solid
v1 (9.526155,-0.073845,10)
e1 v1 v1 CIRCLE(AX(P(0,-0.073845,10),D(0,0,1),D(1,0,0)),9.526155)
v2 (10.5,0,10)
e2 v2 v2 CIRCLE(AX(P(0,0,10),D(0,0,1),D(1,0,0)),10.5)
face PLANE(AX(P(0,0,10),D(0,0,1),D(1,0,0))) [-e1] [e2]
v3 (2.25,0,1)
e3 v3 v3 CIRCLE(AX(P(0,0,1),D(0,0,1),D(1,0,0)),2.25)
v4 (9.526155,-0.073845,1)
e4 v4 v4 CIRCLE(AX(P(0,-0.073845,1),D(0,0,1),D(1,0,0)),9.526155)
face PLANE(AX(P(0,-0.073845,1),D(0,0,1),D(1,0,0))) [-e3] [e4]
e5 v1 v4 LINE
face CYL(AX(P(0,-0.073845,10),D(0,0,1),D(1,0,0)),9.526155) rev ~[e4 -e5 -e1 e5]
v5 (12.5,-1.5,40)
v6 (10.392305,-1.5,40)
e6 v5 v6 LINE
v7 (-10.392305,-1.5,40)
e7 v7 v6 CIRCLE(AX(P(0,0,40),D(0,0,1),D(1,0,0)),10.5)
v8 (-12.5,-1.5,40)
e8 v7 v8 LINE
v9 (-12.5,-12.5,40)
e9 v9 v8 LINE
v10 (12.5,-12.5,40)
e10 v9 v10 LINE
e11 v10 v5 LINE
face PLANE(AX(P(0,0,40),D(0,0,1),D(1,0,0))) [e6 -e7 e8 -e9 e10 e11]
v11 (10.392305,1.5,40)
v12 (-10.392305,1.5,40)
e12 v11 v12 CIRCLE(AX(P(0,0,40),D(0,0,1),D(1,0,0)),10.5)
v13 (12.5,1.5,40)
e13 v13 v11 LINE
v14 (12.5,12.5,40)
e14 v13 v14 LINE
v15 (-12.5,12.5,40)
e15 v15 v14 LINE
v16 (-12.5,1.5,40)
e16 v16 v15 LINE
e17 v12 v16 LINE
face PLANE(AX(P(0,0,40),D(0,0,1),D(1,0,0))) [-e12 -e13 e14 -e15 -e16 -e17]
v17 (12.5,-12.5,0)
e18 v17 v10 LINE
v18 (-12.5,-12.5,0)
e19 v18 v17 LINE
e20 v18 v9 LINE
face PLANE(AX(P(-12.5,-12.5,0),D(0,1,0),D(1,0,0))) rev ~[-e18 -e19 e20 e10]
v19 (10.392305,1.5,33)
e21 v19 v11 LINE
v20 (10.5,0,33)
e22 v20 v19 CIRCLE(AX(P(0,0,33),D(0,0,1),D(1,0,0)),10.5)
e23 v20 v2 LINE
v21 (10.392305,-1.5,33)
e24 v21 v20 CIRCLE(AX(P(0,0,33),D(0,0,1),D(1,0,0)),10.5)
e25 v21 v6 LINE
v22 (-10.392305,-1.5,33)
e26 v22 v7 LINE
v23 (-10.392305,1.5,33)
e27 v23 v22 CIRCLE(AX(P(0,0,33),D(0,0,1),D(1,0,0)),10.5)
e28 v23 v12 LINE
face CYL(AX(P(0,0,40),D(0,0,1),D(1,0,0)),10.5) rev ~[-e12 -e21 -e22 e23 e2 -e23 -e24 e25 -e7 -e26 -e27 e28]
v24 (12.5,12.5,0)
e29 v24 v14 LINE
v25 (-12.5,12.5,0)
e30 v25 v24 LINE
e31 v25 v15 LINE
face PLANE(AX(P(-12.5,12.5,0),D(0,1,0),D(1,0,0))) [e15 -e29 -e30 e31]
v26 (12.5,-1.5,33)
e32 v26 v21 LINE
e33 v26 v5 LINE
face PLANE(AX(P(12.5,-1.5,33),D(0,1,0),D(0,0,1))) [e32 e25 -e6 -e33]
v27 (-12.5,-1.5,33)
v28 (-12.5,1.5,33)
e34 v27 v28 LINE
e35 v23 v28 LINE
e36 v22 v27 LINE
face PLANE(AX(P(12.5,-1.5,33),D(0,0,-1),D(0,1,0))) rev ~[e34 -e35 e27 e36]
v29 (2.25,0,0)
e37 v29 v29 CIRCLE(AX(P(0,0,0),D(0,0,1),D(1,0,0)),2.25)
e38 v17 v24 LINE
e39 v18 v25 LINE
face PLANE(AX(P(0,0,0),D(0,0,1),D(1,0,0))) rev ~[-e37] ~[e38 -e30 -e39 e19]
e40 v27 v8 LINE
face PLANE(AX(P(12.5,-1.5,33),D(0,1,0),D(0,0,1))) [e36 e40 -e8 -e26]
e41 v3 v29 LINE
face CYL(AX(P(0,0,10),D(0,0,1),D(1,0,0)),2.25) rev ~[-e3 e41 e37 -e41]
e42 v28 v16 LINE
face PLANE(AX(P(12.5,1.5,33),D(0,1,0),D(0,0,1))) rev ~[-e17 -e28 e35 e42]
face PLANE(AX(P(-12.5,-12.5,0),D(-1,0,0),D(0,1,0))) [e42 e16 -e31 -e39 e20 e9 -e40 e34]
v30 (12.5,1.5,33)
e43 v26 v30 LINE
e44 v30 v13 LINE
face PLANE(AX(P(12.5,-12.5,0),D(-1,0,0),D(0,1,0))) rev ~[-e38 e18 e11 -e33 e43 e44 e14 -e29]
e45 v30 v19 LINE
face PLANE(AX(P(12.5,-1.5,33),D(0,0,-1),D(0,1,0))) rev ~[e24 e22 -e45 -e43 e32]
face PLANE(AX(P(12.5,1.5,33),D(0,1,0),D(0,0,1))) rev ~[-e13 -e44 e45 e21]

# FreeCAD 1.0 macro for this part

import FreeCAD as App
import Part
import Sketcher
from FreeCAD import Vector

doc = App.newDocument("Part")
params = doc.addObject("Spreadsheet::Sheet", "Params")
for row, (alias, value) in enumerate([
    ("sketch1_width", "25 mm"),
    ("pad1_length", "40 mm"),
    ("sketch2_diameter", "21 mm"),
    ("pocket1_length", "30 mm"),
    ("sketch3_diameter", "4.5 mm"),
    ("pocket2_length", "25 mm"),
    ("sketch4_width", "3 mm"),
    ("sketch4_height", "7 mm"),
    ("pocket3_length", "25 mm"),
    ("pocket4_length", "9 mm"),
], start=1):
    params.set(f"A{row}", alias)
    params.set(f"B{row}", "=" + value)
    params.setAlias(f"B{row}", alias)

body = doc.addObject("PartDesign::Body", "Body")

# Sketch on XY plane
sketch1 = doc.addObject("Sketcher::SketchObject", "Sketch")
body.addObject(sketch1)
sketch1.AttachmentSupport = (doc.XY_Plane, [""])
sketch1.MapMode = "FlatFace"
sketch1.addGeometry([
    Part.LineSegment(Vector(-12, 12, 0), Vector(-12, -12, 0)),
    Part.LineSegment(Vector(-12, -12, 0), Vector(12, -12, 0)),
    Part.LineSegment(Vector(12, -12, 0), Vector(12, 12, 0)),
    Part.LineSegment(Vector(12, 12, 0), Vector(-12, 12, 0)),
], False)
sketch1.addConstraint([
    Sketcher.Constraint("Coincident", 0, 2, 1, 1),
    Sketcher.Constraint("Coincident", 1, 2, 2, 1),
    Sketcher.Constraint("Coincident", 2, 2, 3, 1),
    Sketcher.Constraint("Coincident", 3, 2, 0, 1),
    Sketcher.Constraint("Vertical", 0),
    Sketcher.Constraint("Horizontal", 1),
    Sketcher.Constraint("Vertical", 2),
    Sketcher.Constraint("Horizontal", 3),
    Sketcher.Constraint("Symmetric", 0, 2, 2, 2, -1, 1),
    Sketcher.Constraint("Equal", 3, 0),
    Sketcher.Constraint("DistanceX", 1, 1, 1, 2, 25.0),
])
sketch1.setExpression("Constraints[10]", "Params.sketch1_width")
pad1 = doc.addObject("PartDesign::Pad", "Pad")
body.addObject(pad1)
pad1.Profile = sketch1
pad1.setExpression("Length", "Params.pad1_length")

# Sketch on XY plane
sketch2 = doc.addObject("Sketcher::SketchObject", "Sketch001")
body.addObject(sketch2)
sketch2.AttachmentSupport = (doc.XY_Plane, [""])
sketch2.MapMode = "FlatFace"
sketch2.AttachmentOffset = App.Placement(Vector(0, 0, 40), App.Rotation())
sketch2.addGeometry(Part.Circle(Vector(0, 0, 0), Vector(0, 0, 1), 10), False)
sketch2.addConstraint([
    Sketcher.Constraint("Coincident", 0, 3, -1, 1),
    Sketcher.Constraint("Diameter", 0, 21.0),
])
sketch2.setExpression("Constraints[1]", "Params.sketch2_diameter")
pocket1 = doc.addObject("PartDesign::Pocket", "Pocket")
body.addObject(pocket1)
pocket1.Profile = sketch2
pocket1.setExpression("Length", "Params.pocket1_length")

# Sketch on XY plane
sketch3 = doc.addObject("Sketcher::SketchObject", "Sketch002")
body.addObject(sketch3)
sketch3.AttachmentSupport = (doc.XY_Plane, [""])
sketch3.MapMode = "FlatFace"
sketch3.AttachmentOffset = App.Placement(Vector(0, 0, 10), App.Rotation())
sketch3.addGeometry(Part.Circle(Vector(0, 0, 0), Vector(0, 0, 1), 2.2), False)
sketch3.addConstraint([
    Sketcher.Constraint("Coincident", 0, 3, -1, 1),
    Sketcher.Constraint("Diameter", 0, 4.5),
])
sketch3.setExpression("Constraints[1]", "Params.sketch3_diameter")
pocket2 = doc.addObject("PartDesign::Pocket", "Pocket001")
body.addObject(pocket2)
pocket2.Profile = sketch3
pocket2.setExpression("Length", "Params.pocket2_length")

# Sketch on YZ plane
sketch4 = doc.addObject("Sketcher::SketchObject", "Sketch003")
body.addObject(sketch4)
sketch4.AttachmentSupport = (doc.YZ_Plane, [""])
sketch4.MapMode = "FlatFace"
sketch4.AttachmentOffset = App.Placement(Vector(0, 0, 12.5), App.Rotation())
sketch4.addGeometry([
    Part.LineSegment(Vector(-1.5, 40, 0), Vector(-1.5, 33, 0)),
    Part.LineSegment(Vector(-1.5, 33, 0), Vector(1.5, 33, 0)),
    Part.LineSegment(Vector(1.5, 33, 0), Vector(1.5, 40, 0)),
    Part.LineSegment(Vector(1.5, 40, 0), Vector(-1.5, 40, 0)),
], False)
sketch4.addConstraint([
    Sketcher.Constraint("Coincident", 0, 2, 1, 1),
    Sketcher.Constraint("Coincident", 1, 2, 2, 1),
    Sketcher.Constraint("Coincident", 2, 2, 3, 1),
    Sketcher.Constraint("Coincident", 3, 2, 0, 1),
    Sketcher.Constraint("Vertical", 0),
    Sketcher.Constraint("Horizontal", 1),
    Sketcher.Constraint("Vertical", 2),
    Sketcher.Constraint("Horizontal", 3),
    Sketcher.Constraint("DistanceX", 1, 1, 1, 2, 3.0),
    Sketcher.Constraint("DistanceY", 0, 2, 0, 1, 7.0),
    Sketcher.Constraint("DistanceY", -1, 1, 0, 2, 33.0),
    Sketcher.Constraint("DistanceX", 0, 2, -1, 1, 1.5),
])
sketch4.setExpression("Constraints[8]", "Params.sketch4_width")
sketch4.setExpression("Constraints[9]", "Params.sketch4_height")
pocket3 = doc.addObject("PartDesign::Pocket", "Pocket002")
body.addObject(pocket3)
pocket3.Profile = sketch4
pocket3.setExpression("Length", "Params.pocket3_length")

# Sketch on XY plane
sketch5 = doc.addObject("Sketcher::SketchObject", "Sketch004")
body.addObject(sketch5)
sketch5.AttachmentSupport = (doc.XY_Plane, [""])
sketch5.MapMode = "FlatFace"
sketch5.AttachmentOffset = App.Placement(Vector(0, 0, 10), App.Rotation())
sketch5.addGeometry(Part.Circle(Vector(0, 0, 0), Vector(0, 0, 1), 10), False)
sketch5.addConstraint([
    Sketcher.Constraint("PointOnObject", 0, 3, -2),
    Sketcher.Constraint("Diameter", 0, 19.05231),
    Sketcher.Constraint("DistanceY", 0, 3, -1, 1, 0.073845),
])
pocket4 = doc.addObject("PartDesign::Pocket", "Pocket003")
body.addObject(pocket4)
pocket4.Profile = sketch5
pocket4.setExpression("Length", "Params.pocket4_length")

doc.recompute()
